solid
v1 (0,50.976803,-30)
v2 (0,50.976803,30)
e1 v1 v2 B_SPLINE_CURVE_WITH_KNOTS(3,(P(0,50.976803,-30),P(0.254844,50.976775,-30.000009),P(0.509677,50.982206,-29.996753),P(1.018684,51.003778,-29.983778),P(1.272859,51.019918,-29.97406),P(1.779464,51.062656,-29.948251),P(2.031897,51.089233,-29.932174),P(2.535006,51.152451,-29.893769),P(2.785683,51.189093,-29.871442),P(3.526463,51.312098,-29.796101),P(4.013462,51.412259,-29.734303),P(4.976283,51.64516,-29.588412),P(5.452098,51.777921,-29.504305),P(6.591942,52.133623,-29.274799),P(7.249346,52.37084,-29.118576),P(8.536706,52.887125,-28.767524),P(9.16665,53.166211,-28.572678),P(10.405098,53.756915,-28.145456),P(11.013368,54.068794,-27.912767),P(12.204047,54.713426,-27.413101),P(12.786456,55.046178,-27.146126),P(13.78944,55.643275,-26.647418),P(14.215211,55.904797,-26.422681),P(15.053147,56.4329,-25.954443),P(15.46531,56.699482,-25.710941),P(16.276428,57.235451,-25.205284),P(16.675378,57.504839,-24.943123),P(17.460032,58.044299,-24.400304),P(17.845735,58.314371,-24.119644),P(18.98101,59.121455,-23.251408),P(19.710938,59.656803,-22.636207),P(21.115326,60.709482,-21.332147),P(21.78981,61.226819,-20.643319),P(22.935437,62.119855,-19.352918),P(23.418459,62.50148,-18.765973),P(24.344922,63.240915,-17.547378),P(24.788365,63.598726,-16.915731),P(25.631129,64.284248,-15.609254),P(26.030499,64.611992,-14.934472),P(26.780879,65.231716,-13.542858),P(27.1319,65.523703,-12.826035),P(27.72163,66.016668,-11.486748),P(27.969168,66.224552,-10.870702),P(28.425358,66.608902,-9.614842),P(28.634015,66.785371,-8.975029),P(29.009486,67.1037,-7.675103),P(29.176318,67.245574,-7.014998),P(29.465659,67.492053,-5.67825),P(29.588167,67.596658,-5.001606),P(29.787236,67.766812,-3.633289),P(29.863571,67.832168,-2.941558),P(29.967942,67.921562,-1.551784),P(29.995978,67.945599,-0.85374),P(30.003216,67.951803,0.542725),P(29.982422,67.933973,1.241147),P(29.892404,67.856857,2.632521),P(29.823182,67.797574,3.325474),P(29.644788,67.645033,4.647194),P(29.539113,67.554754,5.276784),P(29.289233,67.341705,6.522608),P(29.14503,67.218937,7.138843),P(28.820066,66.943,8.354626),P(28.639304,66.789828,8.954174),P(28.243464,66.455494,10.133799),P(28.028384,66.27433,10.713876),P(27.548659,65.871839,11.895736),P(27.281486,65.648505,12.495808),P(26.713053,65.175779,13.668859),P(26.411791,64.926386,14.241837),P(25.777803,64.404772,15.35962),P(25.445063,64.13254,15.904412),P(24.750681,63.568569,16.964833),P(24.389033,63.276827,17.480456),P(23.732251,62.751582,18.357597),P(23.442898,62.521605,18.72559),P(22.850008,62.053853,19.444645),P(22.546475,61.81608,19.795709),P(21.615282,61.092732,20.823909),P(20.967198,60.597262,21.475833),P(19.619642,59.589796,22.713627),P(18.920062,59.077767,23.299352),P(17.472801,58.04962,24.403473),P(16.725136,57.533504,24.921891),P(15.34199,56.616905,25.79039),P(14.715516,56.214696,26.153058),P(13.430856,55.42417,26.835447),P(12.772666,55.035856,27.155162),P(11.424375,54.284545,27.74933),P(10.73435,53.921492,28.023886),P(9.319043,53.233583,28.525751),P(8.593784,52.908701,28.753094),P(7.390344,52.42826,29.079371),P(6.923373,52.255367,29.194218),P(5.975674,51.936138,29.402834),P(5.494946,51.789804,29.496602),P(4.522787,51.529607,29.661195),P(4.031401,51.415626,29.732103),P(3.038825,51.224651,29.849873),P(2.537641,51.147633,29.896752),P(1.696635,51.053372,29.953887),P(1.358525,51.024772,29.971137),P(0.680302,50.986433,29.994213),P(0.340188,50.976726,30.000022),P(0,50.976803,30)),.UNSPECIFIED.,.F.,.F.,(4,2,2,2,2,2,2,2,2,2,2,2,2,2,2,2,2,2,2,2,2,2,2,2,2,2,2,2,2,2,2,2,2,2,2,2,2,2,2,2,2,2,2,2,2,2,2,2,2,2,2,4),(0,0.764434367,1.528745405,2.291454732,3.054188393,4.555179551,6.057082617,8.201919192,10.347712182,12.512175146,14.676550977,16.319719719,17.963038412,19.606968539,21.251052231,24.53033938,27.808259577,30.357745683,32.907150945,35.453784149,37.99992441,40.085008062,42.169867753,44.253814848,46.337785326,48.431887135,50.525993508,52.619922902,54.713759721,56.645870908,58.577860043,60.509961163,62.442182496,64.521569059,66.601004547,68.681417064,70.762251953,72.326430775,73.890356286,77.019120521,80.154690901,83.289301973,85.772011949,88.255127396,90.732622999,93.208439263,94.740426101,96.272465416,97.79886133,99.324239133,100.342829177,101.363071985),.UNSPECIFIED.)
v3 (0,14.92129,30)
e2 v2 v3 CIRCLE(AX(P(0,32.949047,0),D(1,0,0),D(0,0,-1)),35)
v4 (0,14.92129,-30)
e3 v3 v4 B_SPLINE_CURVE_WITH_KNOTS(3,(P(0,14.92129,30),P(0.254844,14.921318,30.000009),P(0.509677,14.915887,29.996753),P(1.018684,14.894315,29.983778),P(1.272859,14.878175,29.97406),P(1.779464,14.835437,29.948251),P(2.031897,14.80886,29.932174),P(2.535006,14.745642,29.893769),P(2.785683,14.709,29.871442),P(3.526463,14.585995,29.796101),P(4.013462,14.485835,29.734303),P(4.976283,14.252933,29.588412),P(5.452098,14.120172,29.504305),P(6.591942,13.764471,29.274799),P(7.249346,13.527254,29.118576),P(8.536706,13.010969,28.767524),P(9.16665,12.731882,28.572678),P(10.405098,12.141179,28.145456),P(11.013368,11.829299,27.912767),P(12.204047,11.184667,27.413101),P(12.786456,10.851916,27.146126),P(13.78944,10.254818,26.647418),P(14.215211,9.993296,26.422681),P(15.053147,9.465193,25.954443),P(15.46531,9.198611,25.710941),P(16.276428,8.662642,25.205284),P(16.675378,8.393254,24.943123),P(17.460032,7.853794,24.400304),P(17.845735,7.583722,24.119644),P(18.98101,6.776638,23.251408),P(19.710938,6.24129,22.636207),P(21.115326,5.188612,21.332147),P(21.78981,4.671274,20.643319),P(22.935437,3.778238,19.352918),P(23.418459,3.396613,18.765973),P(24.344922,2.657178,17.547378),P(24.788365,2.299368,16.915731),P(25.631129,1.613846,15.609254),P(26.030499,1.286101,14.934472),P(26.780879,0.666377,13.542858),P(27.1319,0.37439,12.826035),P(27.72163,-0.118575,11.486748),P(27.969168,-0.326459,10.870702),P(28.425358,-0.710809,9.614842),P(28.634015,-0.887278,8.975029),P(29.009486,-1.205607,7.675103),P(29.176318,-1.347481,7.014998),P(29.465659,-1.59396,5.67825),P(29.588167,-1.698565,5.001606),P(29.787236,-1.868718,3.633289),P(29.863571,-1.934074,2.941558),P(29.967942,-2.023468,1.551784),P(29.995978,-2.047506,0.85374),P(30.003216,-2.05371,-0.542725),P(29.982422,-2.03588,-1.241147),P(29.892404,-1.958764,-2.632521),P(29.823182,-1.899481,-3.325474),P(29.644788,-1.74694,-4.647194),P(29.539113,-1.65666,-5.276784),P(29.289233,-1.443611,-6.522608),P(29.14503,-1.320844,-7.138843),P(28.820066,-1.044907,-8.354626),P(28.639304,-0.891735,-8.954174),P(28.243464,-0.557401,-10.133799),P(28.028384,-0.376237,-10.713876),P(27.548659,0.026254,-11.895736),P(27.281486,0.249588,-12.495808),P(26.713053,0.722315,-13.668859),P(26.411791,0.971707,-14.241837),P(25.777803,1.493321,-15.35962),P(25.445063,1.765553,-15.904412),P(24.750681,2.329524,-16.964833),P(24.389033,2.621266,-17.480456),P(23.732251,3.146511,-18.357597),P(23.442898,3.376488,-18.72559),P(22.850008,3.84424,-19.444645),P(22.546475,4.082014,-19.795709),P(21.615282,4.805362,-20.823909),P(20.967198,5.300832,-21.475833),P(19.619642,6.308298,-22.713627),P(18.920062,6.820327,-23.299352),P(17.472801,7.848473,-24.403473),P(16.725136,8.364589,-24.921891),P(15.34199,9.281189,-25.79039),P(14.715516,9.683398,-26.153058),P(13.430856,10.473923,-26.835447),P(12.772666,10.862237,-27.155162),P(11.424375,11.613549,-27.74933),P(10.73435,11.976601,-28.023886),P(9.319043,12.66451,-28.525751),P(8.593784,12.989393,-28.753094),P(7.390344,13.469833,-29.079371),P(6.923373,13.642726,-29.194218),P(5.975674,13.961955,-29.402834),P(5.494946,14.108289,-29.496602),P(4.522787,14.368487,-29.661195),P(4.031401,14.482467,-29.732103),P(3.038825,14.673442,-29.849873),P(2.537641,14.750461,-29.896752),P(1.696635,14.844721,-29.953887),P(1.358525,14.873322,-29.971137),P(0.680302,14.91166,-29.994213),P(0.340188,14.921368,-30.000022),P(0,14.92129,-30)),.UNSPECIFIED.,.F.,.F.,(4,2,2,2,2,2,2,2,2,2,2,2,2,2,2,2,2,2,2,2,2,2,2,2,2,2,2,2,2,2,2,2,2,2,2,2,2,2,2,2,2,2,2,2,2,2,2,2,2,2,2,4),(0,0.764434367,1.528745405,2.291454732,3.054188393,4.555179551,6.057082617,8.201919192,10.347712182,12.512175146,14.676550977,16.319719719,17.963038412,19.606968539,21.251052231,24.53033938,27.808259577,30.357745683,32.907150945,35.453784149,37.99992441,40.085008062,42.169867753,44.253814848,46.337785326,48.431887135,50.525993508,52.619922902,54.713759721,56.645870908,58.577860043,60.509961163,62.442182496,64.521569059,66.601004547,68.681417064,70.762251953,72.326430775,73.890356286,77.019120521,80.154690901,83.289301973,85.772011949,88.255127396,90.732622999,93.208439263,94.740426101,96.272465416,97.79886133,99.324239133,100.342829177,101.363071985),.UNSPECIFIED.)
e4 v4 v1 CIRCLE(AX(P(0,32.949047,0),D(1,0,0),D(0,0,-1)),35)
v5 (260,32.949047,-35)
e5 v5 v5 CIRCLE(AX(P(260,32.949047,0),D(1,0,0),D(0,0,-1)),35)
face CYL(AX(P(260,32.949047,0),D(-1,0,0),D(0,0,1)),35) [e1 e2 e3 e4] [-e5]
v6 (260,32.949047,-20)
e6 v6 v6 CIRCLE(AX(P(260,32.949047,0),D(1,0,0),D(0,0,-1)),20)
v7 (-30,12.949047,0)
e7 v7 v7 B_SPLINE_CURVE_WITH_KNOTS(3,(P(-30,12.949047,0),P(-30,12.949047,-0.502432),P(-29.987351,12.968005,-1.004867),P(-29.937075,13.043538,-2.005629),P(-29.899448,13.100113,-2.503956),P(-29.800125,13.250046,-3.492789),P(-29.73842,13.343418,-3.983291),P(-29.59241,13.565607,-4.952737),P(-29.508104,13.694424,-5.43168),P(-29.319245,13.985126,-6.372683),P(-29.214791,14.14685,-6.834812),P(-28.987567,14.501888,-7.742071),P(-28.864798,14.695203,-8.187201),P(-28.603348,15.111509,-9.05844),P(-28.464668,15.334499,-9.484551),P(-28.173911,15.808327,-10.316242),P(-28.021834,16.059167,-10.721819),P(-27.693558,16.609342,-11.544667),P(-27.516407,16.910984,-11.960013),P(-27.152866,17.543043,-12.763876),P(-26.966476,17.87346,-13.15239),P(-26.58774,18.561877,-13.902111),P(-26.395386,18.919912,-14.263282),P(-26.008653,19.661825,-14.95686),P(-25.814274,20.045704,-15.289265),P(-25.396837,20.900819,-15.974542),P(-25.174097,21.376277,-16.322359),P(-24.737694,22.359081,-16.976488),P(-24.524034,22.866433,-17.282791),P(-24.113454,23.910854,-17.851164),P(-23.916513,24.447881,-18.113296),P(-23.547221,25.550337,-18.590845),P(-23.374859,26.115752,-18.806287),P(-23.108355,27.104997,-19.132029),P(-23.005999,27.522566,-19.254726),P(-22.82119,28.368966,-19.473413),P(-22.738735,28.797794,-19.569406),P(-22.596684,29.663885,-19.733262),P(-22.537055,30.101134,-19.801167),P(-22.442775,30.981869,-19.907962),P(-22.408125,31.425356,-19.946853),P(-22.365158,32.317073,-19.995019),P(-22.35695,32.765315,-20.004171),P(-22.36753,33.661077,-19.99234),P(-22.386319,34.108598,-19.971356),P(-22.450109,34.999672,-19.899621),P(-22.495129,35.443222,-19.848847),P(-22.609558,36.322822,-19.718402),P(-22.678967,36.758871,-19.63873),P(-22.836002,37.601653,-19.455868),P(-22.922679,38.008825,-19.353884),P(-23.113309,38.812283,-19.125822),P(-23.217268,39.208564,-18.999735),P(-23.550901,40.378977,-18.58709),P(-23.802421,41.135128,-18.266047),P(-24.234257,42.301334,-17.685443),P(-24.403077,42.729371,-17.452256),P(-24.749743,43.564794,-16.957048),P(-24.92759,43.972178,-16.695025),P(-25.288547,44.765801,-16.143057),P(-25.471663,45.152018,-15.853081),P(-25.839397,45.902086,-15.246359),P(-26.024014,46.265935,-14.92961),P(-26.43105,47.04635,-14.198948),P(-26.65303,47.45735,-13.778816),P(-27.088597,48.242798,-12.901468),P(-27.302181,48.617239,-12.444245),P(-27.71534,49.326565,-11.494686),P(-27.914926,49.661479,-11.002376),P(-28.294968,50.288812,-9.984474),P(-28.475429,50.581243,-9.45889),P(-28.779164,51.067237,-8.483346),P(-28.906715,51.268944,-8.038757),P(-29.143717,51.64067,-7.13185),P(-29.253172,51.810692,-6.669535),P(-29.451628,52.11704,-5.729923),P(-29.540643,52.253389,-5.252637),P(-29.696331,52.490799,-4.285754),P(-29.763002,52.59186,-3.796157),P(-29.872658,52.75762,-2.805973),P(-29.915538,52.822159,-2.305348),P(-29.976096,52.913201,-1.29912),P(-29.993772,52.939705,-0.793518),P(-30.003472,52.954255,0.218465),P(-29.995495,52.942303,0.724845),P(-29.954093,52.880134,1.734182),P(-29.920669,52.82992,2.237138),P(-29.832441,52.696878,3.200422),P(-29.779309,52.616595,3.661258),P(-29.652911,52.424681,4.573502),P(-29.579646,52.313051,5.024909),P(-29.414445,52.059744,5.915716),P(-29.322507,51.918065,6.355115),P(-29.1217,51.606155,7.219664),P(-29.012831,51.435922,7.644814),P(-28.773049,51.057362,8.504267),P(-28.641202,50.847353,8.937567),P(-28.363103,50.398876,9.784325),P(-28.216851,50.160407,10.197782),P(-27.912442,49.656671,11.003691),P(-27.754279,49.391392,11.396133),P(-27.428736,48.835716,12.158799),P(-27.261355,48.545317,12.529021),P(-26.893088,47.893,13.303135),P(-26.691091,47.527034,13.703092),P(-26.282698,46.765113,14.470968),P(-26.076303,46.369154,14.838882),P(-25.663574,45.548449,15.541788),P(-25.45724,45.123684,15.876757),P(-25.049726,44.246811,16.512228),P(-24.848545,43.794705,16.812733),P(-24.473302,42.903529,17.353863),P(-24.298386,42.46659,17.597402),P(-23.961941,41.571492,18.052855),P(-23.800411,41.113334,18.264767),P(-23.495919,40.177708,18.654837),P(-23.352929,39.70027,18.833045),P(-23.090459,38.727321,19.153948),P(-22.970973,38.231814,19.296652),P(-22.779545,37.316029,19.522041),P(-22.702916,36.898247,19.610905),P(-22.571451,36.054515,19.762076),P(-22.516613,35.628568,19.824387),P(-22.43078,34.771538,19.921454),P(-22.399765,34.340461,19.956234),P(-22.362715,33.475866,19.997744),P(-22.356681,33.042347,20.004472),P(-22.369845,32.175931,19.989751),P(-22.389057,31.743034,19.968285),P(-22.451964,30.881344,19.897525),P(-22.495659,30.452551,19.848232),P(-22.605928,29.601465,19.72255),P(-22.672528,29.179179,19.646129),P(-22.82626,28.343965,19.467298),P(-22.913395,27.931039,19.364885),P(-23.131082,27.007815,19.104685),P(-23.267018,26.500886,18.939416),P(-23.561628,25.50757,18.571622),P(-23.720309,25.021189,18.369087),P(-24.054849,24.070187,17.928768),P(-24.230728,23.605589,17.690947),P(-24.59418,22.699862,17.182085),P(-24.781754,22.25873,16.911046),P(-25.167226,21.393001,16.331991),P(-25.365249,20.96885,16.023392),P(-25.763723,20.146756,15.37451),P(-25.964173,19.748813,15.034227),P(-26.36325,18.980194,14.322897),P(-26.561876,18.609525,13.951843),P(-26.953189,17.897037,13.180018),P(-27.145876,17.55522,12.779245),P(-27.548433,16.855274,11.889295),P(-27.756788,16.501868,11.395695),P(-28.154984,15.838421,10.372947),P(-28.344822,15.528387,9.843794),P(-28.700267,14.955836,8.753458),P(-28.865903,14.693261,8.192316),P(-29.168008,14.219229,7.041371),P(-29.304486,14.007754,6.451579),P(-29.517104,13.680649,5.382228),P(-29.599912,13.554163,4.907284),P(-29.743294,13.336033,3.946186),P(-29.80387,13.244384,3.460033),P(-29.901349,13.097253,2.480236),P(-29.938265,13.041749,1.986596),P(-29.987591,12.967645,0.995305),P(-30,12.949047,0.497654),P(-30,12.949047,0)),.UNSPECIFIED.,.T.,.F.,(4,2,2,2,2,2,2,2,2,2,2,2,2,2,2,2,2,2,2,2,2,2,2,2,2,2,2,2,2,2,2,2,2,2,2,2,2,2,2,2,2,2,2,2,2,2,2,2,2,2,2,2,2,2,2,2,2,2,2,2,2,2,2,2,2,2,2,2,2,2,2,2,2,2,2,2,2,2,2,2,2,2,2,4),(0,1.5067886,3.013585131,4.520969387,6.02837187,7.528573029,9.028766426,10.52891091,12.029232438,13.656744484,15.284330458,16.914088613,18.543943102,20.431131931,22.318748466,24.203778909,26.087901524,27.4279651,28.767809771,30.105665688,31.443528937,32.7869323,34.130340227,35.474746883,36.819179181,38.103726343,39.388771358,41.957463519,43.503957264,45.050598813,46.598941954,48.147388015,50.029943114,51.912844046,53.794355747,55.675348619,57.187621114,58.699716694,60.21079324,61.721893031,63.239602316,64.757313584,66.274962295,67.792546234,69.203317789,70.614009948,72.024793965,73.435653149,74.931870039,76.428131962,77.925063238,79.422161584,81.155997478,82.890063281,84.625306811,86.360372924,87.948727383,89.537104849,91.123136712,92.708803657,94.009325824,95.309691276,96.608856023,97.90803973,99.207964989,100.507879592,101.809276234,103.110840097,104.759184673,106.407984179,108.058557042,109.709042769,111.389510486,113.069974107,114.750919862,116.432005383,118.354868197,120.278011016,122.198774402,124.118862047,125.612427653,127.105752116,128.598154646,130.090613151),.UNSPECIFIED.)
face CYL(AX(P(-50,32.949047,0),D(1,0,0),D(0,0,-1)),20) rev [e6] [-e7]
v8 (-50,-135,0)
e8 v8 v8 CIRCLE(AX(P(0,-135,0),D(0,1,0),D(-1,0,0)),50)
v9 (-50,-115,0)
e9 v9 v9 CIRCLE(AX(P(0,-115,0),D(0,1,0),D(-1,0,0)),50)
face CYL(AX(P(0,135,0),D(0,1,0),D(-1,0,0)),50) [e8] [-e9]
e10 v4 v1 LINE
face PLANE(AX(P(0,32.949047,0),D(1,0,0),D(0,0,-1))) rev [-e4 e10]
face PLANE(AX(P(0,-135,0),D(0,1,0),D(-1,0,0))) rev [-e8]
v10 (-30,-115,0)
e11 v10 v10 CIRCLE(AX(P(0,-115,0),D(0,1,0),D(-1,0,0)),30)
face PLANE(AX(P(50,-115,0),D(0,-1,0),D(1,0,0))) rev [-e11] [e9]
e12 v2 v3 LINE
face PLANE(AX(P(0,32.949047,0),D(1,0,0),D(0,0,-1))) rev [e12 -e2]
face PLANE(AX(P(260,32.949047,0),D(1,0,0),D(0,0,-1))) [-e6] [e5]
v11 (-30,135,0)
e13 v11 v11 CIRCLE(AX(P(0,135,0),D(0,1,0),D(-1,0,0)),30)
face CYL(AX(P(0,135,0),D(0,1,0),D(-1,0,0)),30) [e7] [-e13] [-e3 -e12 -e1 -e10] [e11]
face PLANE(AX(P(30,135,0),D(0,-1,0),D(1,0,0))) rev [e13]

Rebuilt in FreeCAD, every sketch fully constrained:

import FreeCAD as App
import Part
import Sketcher

V = App.Vector


def add_polygon(sketch, points):
    """Adds a closed chain of lines whose ends are joined by coincident constraints."""
    first, n = sketch.GeometryCount, len(points)
    for a, b in zip(points, points[1:] + points[:1]):
        sketch.addGeometry(Part.LineSegment(App.Vector(*a, 0), App.Vector(*b, 0)), False)
    for i in range(n):
        sketch.addConstraint(Sketcher.Constraint("Coincident", first + i, 2, first + (i + 1) % n, 1))

doc = App.newDocument("Part")
params = doc.addObject("Spreadsheet::Sheet", "Params")
for row, (alias, value) in enumerate([
    ("sketch1_width", "50 mm"),
    ("sketch1_width2", "20 mm"),
    ("sketch1_height", "270 mm"),
    ("revolution_angle", "360 deg"),
    ("sketch2_diameter", "70 mm"),
    ("pad1_length", "260 mm"),
    ("sketch3_diameter", "40 mm"),
], start=1):
    params.set(f"A{row}", alias)
    params.set(f"B{row}", "=" + value)
    params.setAlias(f"B{row}", alias)

body = doc.addObject("PartDesign::Body", "Body")

# Sketch on XY plane
sketch1 = doc.addObject("Sketcher::SketchObject", "Sketch")
body.addObject(sketch1)
sketch1.AttachmentSupport = (doc.XY_Plane, [""])
sketch1.MapMode = "FlatFace"
add_polygon(sketch1, [(0, 135), (0, -135), (50, -135), (50, -115), (30, -115), (30, 135)])  # lines 0-5
sketch1.addConstraint([
    Sketcher.Constraint("Vertical", 0),
    Sketcher.Constraint("Horizontal", 1),
    Sketcher.Constraint("Vertical", 2),
    Sketcher.Constraint("Horizontal", 3),
    Sketcher.Constraint("Vertical", 4),
    Sketcher.Constraint("Horizontal", 5),
    Sketcher.Constraint("Symmetric", 0, 2, 5, 2, -1, 1),
    Sketcher.Constraint("Equal", 3, 2),
    Sketcher.Constraint("DistanceX", 1, 1, 1, 2, 50.0),
    Sketcher.Constraint("DistanceX", 3, 2, 3, 1, 20.0),
    Sketcher.Constraint("DistanceY", 0, 2, 0, 1, 270.0),
])
sketch1.setExpression("Constraints[14]", "Params.sketch1_width")
sketch1.setExpression("Constraints[15]", "Params.sketch1_width2")
sketch1.setExpression("Constraints[16]", "Params.sketch1_height")
revolution = doc.addObject("PartDesign::Revolution", "Revolution")
body.addObject(revolution)
revolution.Profile = sketch1
revolution.ReferenceAxis = (sketch1, ["V_Axis"])
revolution.setExpression("Angle", "Params.revolution_angle")

# Sketch on YZ plane
sketch2 = doc.addObject("Sketcher::SketchObject", "Sketch001")
body.addObject(sketch2)
sketch2.AttachmentSupport = (doc.YZ_Plane, [""])
sketch2.MapMode = "FlatFace"
sketch2.addGeometry(Part.Circle(V(33, 0, 0), V(0, 0, 1), 35), False)
sketch2.addConstraint([
    Sketcher.Constraint("PointOnObject", 0, 3, -1),
    Sketcher.Constraint("Diameter", 0, 70.0),
    Sketcher.Constraint("DistanceX", -1, 1, 0, 3, 32.949047),
])
sketch2.setExpression("Constraints[1]", "Params.sketch2_diameter")
pad1 = doc.addObject("PartDesign::Pad", "Pad")
body.addObject(pad1)
pad1.Profile = sketch2
pad1.setExpression("Length", "Params.pad1_length")

# Sketch on YZ plane
sketch3 = doc.addObject("Sketcher::SketchObject", "Sketch002")
body.addObject(sketch3)
sketch3.AttachmentSupport = (doc.YZ_Plane, [""])
sketch3.MapMode = "FlatFace"
sketch3.AttachmentOffset = App.Placement(V(0, 0, 260), App.Rotation())
sketch3.addGeometry(Part.Circle(V(33, 0, 0), V(0, 0, 1), 20), False)
sketch3.addConstraint([
    Sketcher.Constraint("PointOnObject", 0, 3, -1),
    Sketcher.Constraint("Diameter", 0, 40.0),
    Sketcher.Constraint("DistanceX", -1, 1, 0, 3, 32.949047),
])
sketch3.setExpression("Constraints[1]", "Params.sketch3_diameter")
pocket1 = doc.addObject("PartDesign::Pocket", "Pocket")
body.addObject(pocket1)
pocket1.Profile = sketch3
pocket1.Type = "ThroughAll"

doc.recompute()
